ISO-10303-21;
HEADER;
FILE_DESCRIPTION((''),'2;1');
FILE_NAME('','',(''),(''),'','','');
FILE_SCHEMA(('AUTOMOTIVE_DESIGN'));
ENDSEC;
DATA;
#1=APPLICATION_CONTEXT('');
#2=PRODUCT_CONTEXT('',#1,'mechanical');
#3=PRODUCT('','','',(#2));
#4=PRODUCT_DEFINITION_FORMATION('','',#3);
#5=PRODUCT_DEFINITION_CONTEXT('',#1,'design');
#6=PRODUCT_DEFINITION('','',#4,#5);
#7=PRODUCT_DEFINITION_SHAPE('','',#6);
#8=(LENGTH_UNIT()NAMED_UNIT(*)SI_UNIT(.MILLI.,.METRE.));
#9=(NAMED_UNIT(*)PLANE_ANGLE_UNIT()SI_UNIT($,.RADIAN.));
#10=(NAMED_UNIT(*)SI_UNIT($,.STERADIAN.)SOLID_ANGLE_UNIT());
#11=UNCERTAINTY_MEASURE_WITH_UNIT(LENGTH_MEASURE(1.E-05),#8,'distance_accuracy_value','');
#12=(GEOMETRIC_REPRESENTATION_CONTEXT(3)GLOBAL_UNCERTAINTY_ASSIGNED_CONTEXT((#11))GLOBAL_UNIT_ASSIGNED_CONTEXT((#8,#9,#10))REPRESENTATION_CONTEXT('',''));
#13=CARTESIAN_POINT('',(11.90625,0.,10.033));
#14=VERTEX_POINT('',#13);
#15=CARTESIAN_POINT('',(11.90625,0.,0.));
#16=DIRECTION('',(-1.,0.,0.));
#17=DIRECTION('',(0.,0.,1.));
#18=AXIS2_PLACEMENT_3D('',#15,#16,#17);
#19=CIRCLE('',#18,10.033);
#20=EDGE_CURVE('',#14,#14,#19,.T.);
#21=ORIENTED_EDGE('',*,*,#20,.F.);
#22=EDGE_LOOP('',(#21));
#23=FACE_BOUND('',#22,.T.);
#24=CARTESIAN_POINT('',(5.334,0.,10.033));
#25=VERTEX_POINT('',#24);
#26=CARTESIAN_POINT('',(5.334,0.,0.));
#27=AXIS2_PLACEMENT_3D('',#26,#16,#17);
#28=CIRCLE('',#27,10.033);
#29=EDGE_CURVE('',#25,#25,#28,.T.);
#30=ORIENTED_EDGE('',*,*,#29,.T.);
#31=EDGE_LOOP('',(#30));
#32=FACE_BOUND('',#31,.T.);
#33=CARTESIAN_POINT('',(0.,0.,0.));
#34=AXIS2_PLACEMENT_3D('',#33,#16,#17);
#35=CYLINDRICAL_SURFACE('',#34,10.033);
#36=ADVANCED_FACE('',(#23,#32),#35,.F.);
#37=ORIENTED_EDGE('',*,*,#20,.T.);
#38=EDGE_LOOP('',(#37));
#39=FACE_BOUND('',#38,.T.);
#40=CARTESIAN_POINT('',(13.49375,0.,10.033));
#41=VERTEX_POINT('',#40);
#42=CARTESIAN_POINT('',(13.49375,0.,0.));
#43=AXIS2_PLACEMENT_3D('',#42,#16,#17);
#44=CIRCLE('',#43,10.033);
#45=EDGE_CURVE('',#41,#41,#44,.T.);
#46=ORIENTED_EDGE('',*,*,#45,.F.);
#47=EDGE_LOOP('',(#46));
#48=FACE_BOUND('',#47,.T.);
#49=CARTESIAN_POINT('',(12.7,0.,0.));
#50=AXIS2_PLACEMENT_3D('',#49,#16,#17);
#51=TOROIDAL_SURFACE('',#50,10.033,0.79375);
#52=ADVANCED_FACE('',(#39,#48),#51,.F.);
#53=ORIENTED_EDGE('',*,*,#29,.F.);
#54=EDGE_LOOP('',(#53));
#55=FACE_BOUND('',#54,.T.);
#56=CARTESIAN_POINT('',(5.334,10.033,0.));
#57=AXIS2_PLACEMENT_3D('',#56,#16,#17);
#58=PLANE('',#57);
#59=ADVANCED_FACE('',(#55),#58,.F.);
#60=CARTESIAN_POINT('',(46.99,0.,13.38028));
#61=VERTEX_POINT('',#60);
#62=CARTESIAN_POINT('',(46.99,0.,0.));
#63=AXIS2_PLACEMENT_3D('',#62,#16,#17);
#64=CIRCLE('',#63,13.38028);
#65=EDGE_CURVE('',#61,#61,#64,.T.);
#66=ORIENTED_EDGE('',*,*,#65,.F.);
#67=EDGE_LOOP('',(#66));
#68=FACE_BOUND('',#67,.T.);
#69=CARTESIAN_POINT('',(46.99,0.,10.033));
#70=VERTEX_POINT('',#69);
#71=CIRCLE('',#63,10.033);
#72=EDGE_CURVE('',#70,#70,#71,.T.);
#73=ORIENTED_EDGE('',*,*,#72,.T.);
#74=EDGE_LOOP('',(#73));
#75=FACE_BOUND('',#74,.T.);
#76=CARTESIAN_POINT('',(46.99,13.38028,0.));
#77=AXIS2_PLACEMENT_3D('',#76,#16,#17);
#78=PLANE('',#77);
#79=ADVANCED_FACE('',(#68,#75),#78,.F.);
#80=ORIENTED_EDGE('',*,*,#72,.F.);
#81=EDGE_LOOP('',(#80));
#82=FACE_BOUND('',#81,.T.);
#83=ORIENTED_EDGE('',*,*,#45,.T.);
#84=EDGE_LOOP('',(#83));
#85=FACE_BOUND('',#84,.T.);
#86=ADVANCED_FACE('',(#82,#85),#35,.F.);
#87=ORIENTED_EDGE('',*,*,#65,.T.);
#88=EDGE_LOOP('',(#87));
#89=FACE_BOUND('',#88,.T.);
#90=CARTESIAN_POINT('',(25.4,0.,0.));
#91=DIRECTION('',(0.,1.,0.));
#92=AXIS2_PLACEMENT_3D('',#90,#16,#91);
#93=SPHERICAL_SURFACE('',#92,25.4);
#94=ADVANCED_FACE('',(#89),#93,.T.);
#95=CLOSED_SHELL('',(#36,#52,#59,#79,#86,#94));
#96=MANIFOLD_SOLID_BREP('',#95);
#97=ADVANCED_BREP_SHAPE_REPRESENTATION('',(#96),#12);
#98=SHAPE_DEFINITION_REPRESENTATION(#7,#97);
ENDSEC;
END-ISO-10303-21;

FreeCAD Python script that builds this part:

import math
import FreeCAD as App
import Part
import Sketcher
Q = App.Units.Quantity

doc = App.newDocument("Part")
body = doc.addObject("PartDesign::Body", "Body")

# Sketch on XY plane
sketch1 = body.newObject("Sketcher::SketchObject", "Sketch")
sketch1.AttachmentSupport = (doc.getObject("XY_Plane"), [""])
sketch1.MapMode = "FlatFace"
sketch1.addGeometry(Part.LineSegment(App.Vector(47, 10, 0), App.Vector(47, 13.4, 0)), False)
sketch1.addGeometry(Part.ArcOfCircle(Part.Circle(App.Vector(25.4, 0, 0), App.Vector(0, 0, 1), 25.4), math.radians(32), math.radians(180)), False)
sketch1.addGeometry(Part.LineSegment(App.Vector(0, 0, 0), App.Vector(5.3, 0, 0)), False)
sketch1.addGeometry(Part.LineSegment(App.Vector(5.3, 0, 0), App.Vector(5.3, 10, 0)), False)
sketch1.addGeometry(Part.LineSegment(App.Vector(5.3, 10, 0), App.Vector(11.9, 10, 0)), False)
sketch1.addGeometry(Part.ArcOfCircle(Part.Circle(App.Vector(12.7, 10, 0), App.Vector(0, 0, 1), 0.8), math.radians(0), math.radians(180)), False)
sketch1.addGeometry(Part.LineSegment(App.Vector(13.5, 10, 0), App.Vector(47, 10, 0)), False)
sketch1.addConstraint(Sketcher.Constraint("Coincident", 0, 2, 1, 1))
sketch1.addConstraint(Sketcher.Constraint("Coincident", 1, 2, 2, 1))
sketch1.addConstraint(Sketcher.Constraint("Coincident", 2, 2, 3, 1))
sketch1.addConstraint(Sketcher.Constraint("Coincident", 3, 2, 4, 1))
sketch1.addConstraint(Sketcher.Constraint("Coincident", 4, 2, 5, 2))
sketch1.addConstraint(Sketcher.Constraint("Coincident", 5, 1, 6, 1))
sketch1.addConstraint(Sketcher.Constraint("Coincident", 6, 2, 0, 1))
sketch1.addConstraint(Sketcher.Constraint("Vertical", 0))
sketch1.addConstraint(Sketcher.Constraint("Horizontal", 2))
sketch1.addConstraint(Sketcher.Constraint("Vertical", 3))
sketch1.addConstraint(Sketcher.Constraint("Horizontal", 4))
sketch1.addConstraint(Sketcher.Constraint("Horizontal", 6))
sketch1.addConstraint(Sketcher.Constraint("Coincident", 1, 2, -1, 1))
sketch1.addConstraint(Sketcher.Constraint("PointOnObject", 1, 3, -1))
sketch1.addConstraint(Sketcher.Constraint("Horizontal", 5, 3, 3, 2))
sketch1.addConstraint(Sketcher.Constraint("Horizontal", 4, 2, 5, 1))
sketch1.addConstraint(Sketcher.Constraint("Radius", 1, Q("1 in")))
sketch1.addConstraint(Sketcher.Constraint("Radius", 5, Q("0.03125 in")))
sketch1.addConstraint(Sketcher.Constraint("DistanceX", 2, 1, 2, 2, Q("0.21 in")))
sketch1.addConstraint(Sketcher.Constraint("DistanceX", -1, 1, 5, 3, Q("0.5 in")))
sketch1.addConstraint(Sketcher.Constraint("DistanceY", 3, 1, 3, 2, Q("0.395 in")))
sketch1.addConstraint(Sketcher.Constraint("DistanceX", -1, 1, 0, 2, Q("1.85 in")))
revolution = body.newObject("PartDesign::Revolution", "Revolution")
revolution.Profile = sketch1
revolution.ReferenceAxis = (sketch1, ["H_Axis"])
revolution.Angle = 360

doc.recompute()
